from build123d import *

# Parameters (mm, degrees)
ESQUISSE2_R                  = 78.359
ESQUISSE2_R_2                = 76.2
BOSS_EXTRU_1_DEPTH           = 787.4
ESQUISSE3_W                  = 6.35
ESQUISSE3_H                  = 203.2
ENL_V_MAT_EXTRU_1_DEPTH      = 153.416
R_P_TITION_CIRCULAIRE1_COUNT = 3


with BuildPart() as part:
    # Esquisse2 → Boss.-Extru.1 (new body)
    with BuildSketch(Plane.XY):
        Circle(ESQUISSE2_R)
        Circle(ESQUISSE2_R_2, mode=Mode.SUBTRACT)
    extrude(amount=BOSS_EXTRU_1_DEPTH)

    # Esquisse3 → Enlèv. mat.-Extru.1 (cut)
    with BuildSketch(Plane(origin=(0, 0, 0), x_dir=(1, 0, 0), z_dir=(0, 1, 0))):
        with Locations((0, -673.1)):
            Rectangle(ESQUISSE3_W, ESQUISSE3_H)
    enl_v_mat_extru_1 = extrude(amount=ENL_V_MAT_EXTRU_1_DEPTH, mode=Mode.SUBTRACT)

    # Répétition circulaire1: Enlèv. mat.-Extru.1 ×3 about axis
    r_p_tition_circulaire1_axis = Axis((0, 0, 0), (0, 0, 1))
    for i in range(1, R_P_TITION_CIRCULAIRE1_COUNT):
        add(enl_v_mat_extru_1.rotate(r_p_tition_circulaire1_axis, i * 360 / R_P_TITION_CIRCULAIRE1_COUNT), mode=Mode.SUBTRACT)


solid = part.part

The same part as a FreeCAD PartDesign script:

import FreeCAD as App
import Part
import Sketcher
from FreeCAD import Vector
Q = App.Units.Quantity


def add_polygon(sketch, points):
    """Adds a closed chain of lines whose ends are joined by coincident constraints."""
    first, n = sketch.GeometryCount, len(points)
    for a, b in zip(points, points[1:] + points[:1]):
        sketch.addGeometry(Part.LineSegment(App.Vector(*a, 0), App.Vector(*b, 0)), False)
    for i in range(n):
        sketch.addConstraint(Sketcher.Constraint("Coincident", first + i, 2, first + (i + 1) % n, 1))

doc = App.newDocument("Part")
body = doc.addObject("PartDesign::Body", "Body")

# Sketch on XY plane
sketch1 = body.newObject("Sketcher::SketchObject", "Sketch")
sketch1.AttachmentSupport = (doc.getObject("XY_Plane"), [""])
sketch1.MapMode = "FlatFace"
sketch1.addGeometry([
    Part.Circle(Vector(0, 0, 0), Vector(0, 0, 1), 78),
    Part.Circle(Vector(0, 0, 0), Vector(0, 0, 1), 76),
], False)
sketch1.addConstraint([
    Sketcher.Constraint("Coincident", 0, 3, -1, 1),
    Sketcher.Constraint("Coincident", 1, 3, -1, 1),
    Sketcher.Constraint("Diameter", 1, Q("6 in")),
    Sketcher.Constraint("Diameter", 0, Q("6.17 in")),
])
pad1 = body.newObject("PartDesign::Pad", "Pad")
pad1.Profile = sketch1
pad1.Length = Q("31 in")

# Sketch on XZ plane
sketch2 = body.newObject("Sketcher::SketchObject", "Sketch001")
sketch2.AttachmentSupport = (doc.getObject("XZ_Plane"), [""])
sketch2.MapMode = "FlatFace"
add_polygon(sketch2, [(-3, 572), (-3, 775), (3, 775), (3, 572)])  # lines 0-3
sketch2.addConstraint([
    Sketcher.Constraint("Vertical", 0),
    Sketcher.Constraint("Horizontal", 1),
    Sketcher.Constraint("Vertical", 2),
    Sketcher.Constraint("Horizontal", 3),
    Sketcher.Constraint("DistanceY", 0, 1, 0, 2, Q("8 in")),
    Sketcher.Constraint("DistanceX", 1, 1, 1, 2, Q("0.25 in")),
    Sketcher.Constraint("DistanceY", -1, 1, 0, 2, Q("30.5 in")),
    Sketcher.Constraint("DistanceX", 0, 2, -1, 1, Q("0.125 in")),
])
pocket1 = body.newObject("PartDesign::Pocket", "Pocket")
pocket1.Profile = sketch2
pocket1.Length = Q("6.04 in")
doc.recompute()

polarpattern = body.newObject("PartDesign::PolarPattern", "PolarPattern")
polarpattern.Originals = [pocket1]
polarpattern.Axis = (doc.getObject("Z_Axis"), [""])
polarpattern.Angle = 360
polarpattern.Occurrences = 3
body.Tip = polarpattern

doc.recompute()
